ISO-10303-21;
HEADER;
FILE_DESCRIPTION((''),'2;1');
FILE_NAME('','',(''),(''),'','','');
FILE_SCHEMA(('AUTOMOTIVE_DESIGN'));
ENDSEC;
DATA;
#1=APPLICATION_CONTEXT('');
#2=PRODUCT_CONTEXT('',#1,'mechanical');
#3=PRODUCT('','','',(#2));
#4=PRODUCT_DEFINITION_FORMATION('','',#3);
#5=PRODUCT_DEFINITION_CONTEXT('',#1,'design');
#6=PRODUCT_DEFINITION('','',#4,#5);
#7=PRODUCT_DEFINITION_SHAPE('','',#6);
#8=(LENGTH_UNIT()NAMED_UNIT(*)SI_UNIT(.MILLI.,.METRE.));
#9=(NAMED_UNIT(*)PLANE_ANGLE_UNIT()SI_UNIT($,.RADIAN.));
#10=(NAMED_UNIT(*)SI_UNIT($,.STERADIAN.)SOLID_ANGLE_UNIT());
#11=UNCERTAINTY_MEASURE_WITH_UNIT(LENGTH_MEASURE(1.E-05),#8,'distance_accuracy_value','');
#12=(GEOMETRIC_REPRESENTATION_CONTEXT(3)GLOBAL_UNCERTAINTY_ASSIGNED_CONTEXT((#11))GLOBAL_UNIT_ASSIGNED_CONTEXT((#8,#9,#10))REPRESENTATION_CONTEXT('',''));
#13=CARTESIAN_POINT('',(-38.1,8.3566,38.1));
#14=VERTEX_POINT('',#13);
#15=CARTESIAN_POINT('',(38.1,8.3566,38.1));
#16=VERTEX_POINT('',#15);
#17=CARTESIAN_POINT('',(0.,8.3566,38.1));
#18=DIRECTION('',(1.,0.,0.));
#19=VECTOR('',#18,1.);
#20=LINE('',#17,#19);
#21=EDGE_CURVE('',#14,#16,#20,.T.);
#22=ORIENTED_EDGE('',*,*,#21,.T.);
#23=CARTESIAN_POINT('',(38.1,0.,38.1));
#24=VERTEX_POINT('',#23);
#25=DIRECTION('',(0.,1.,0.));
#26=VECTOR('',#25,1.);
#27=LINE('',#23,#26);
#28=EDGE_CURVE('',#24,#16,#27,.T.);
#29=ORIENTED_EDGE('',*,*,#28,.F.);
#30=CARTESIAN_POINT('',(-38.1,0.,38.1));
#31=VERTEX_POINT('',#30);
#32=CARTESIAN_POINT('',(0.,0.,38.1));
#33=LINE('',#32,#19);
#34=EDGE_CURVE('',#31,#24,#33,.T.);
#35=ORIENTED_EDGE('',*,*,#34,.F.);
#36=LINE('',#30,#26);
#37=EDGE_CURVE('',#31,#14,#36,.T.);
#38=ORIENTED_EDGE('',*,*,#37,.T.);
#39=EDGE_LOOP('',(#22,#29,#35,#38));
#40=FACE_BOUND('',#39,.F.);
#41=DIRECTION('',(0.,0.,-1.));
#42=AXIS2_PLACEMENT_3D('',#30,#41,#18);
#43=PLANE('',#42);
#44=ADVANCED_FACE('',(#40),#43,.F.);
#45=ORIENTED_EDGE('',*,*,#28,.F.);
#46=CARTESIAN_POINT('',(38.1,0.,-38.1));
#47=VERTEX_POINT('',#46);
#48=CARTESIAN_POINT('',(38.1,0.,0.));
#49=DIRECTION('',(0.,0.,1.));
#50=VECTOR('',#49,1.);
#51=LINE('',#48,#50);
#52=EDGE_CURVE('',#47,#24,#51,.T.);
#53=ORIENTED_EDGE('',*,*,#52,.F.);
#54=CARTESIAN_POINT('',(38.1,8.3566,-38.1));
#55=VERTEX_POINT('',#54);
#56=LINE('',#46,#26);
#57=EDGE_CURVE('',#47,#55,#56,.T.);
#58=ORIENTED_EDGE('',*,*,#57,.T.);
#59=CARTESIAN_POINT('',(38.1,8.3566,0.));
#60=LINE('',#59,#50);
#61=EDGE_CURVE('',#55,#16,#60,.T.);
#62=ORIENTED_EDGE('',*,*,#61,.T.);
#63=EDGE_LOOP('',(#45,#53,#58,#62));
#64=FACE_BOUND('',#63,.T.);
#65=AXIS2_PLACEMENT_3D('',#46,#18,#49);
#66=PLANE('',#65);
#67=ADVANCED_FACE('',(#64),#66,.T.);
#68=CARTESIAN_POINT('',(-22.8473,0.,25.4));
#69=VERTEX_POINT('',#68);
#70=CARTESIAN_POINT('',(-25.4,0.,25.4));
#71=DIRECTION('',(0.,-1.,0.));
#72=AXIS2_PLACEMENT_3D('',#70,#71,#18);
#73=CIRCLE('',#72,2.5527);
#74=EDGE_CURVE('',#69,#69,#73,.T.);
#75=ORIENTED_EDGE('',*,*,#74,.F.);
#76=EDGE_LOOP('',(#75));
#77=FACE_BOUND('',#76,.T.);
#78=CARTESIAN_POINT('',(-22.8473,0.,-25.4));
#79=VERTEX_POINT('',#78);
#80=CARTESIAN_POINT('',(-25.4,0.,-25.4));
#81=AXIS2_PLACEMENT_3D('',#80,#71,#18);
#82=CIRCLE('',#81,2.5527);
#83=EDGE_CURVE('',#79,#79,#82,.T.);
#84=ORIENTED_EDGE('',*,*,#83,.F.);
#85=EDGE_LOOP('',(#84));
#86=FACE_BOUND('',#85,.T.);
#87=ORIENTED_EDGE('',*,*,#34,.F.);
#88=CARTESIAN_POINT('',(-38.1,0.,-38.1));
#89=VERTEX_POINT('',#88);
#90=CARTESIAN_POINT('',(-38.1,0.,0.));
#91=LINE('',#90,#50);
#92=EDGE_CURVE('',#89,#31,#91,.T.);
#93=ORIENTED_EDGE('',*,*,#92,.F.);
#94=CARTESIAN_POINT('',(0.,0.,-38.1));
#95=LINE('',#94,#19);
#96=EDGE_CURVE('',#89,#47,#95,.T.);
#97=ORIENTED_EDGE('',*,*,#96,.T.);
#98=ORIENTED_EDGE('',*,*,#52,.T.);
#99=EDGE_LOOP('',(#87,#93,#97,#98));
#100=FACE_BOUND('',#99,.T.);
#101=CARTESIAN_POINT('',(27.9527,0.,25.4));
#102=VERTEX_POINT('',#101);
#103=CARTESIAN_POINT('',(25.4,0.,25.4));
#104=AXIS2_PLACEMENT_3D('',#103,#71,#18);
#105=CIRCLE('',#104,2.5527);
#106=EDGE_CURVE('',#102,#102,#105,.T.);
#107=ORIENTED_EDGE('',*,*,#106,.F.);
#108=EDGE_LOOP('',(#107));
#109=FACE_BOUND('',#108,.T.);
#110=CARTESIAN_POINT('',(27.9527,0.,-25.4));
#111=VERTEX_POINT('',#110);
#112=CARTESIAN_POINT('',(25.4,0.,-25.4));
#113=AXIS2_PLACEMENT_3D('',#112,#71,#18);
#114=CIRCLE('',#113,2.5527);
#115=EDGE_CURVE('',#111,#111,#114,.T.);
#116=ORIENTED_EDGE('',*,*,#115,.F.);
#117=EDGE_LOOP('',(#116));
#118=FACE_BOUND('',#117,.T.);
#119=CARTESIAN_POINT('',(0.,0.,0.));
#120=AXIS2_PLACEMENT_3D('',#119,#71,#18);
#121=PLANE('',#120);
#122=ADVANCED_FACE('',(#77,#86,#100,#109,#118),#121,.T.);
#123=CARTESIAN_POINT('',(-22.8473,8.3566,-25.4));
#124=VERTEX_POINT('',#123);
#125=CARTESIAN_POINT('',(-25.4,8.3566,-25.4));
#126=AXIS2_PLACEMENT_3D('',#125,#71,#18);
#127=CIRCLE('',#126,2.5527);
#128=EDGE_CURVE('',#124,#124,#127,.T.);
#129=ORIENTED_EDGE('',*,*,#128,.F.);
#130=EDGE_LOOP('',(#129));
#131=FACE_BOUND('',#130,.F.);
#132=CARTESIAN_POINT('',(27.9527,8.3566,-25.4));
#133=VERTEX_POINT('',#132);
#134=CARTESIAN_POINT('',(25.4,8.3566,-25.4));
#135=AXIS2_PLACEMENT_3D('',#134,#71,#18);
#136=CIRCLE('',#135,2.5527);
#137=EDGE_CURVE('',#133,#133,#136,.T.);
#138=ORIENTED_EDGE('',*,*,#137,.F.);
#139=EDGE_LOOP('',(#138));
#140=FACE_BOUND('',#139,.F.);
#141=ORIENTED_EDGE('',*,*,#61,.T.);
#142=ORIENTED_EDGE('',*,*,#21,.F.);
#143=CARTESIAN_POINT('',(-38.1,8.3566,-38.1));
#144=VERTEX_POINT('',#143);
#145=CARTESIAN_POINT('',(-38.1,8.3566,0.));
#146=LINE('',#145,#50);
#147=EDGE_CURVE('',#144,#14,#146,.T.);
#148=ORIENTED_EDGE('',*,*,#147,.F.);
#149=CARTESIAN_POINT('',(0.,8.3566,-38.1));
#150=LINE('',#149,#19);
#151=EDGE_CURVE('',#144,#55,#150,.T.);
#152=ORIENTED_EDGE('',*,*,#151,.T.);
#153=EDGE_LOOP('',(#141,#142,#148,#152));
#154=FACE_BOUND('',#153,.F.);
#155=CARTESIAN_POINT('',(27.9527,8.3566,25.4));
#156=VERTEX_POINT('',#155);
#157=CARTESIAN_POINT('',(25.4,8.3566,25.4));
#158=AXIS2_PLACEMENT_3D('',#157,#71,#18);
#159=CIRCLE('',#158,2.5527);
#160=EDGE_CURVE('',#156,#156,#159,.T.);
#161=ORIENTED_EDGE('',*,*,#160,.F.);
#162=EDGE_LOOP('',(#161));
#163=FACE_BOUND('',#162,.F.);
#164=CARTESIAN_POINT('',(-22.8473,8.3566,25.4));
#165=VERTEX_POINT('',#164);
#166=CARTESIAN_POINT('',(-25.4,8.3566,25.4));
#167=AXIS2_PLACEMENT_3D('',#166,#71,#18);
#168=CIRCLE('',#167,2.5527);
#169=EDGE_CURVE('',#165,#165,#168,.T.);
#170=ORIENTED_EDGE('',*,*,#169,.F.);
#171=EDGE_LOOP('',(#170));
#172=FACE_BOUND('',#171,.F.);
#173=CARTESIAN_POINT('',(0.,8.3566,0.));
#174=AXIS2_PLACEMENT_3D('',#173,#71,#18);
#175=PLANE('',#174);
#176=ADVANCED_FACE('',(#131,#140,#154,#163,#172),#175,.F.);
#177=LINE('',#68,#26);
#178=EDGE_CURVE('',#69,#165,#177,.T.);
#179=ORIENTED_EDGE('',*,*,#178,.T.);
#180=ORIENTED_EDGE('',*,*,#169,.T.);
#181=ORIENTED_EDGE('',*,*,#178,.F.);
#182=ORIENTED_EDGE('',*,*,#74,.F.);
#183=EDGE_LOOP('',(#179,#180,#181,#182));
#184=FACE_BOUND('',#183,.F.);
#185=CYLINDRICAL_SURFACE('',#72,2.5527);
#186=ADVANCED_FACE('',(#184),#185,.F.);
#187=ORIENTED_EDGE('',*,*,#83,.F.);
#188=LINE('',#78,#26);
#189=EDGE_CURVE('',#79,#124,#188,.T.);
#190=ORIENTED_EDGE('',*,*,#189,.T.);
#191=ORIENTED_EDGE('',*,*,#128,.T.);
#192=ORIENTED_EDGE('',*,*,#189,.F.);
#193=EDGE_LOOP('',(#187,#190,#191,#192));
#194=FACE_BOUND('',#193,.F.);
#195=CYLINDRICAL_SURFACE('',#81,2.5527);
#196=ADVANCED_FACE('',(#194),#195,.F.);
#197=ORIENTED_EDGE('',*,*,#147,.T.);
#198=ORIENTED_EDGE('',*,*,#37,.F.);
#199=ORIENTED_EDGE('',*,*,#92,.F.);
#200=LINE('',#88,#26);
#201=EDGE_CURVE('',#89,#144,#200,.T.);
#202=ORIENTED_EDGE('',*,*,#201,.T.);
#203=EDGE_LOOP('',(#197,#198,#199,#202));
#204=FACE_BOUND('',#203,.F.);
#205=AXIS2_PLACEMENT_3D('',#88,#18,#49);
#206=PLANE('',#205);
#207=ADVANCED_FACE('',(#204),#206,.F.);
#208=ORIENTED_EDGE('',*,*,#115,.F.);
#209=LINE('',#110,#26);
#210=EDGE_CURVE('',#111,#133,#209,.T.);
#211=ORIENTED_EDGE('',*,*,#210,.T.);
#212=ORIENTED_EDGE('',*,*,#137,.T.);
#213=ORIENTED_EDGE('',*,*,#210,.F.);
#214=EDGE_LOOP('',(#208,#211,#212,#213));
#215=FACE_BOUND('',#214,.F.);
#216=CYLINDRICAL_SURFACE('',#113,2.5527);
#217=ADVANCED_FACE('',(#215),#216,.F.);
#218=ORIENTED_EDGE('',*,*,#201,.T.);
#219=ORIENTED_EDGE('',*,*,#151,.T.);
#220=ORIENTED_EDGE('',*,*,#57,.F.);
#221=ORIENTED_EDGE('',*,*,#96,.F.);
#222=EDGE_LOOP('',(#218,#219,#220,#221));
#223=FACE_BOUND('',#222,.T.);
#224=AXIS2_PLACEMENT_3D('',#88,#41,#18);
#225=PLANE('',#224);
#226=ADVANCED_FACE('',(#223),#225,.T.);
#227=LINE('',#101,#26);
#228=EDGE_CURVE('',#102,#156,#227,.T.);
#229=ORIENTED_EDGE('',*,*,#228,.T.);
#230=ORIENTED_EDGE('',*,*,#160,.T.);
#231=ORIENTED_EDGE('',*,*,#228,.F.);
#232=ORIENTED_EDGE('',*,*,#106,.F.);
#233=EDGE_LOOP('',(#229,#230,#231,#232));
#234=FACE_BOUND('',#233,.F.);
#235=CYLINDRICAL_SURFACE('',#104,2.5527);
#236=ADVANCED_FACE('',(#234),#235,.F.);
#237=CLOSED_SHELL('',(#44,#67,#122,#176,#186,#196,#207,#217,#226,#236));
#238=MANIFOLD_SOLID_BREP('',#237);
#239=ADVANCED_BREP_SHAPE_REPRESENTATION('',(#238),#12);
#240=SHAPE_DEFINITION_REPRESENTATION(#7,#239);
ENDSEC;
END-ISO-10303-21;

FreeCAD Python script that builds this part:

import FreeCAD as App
import Part
import Sketcher
Q = App.Units.Quantity


def add_polygon(sketch, points):
    """Adds a closed chain of lines whose ends are joined by coincident constraints."""
    first, n = sketch.GeometryCount, len(points)
    for a, b in zip(points, points[1:] + points[:1]):
        sketch.addGeometry(Part.LineSegment(App.Vector(*a, 0), App.Vector(*b, 0)), False)
    for i in range(n):
        sketch.addConstraint(Sketcher.Constraint("Coincident", first + i, 2, first + (i + 1) % n, 1))

doc = App.newDocument("Part")
body = doc.addObject("PartDesign::Body", "Body")

# Sketch on XZ plane
sketch1 = body.newObject("Sketcher::SketchObject", "Sketch")
sketch1.AttachmentSupport = (doc.getObject("XZ_Plane"), [""])
sketch1.MapMode = "FlatFace"
add_polygon(sketch1, [(-38, 38), (-38, -38), (38, -38), (38, 38)])  # lines 0-3
sketch1.addConstraint(Sketcher.Constraint("Vertical", 0))
sketch1.addConstraint(Sketcher.Constraint("Horizontal", 1))
sketch1.addConstraint(Sketcher.Constraint("Vertical", 2))
sketch1.addConstraint(Sketcher.Constraint("Horizontal", 3))
sketch1.addConstraint(Sketcher.Constraint("Symmetric", 0, 2, 2, 2, -1, 1))
sketch1.addConstraint(Sketcher.Constraint("Equal", 3, 0))
sketch1.addConstraint(Sketcher.Constraint("DistanceX", 1, 1, 1, 2, Q("3 in")))
pad1 = body.newObject("PartDesign::Pad", "Pad")
pad1.Profile = sketch1
pad1.Length = Q("0.329 in")
pad1.Reversed = True

# Sketch on XZ plane
sketch2 = body.newObject("Sketcher::SketchObject", "Sketch001")
sketch2.AttachmentSupport = (doc.getObject("XZ_Plane"), [""])
sketch2.MapMode = "FlatFace"
sketch2.addGeometry(Part.Circle(App.Vector(-25.4, 25.4, 0), App.Vector(0, 0, 1), 2.6), False)
sketch2.addGeometry(Part.Circle(App.Vector(25.4, 25.4, 0), App.Vector(0, 0, 1), 2.6), False)
sketch2.addGeometry(Part.Circle(App.Vector(-25.4, -25.4, 0), App.Vector(0, 0, 1), 2.6), False)
sketch2.addGeometry(Part.Circle(App.Vector(25.4, -25.4, 0), App.Vector(0, 0, 1), 2.6), False)
sketch2.addConstraint(Sketcher.Constraint("Equal", 0, 1))
sketch2.addConstraint(Sketcher.Constraint("Equal", 1, 2))
sketch2.addConstraint(Sketcher.Constraint("Equal", 2, 3))
sketch2.addConstraint(Sketcher.Constraint("Symmetric", 1, 3, 2, 3, -1, 1))
sketch2.addConstraint(Sketcher.Constraint("Symmetric", 0, 3, 3, 3, -1, 1))
sketch2.addConstraint(Sketcher.Constraint("Symmetric", 0, 3, 1, 3, -2))
sketch2.addConstraint(Sketcher.Constraint("Diameter", 0, Q("0.201 in")))
sketch2.addConstraint(Sketcher.Constraint("DistanceX", 0, 3, -1, 1, Q("1 in")))
sketch2.addConstraint(Sketcher.Constraint("DistanceY", -1, 1, 0, 3, Q("1 in")))
pocket1 = body.newObject("PartDesign::Pocket", "Pocket")
pocket1.Profile = sketch2
pocket1.Type = "ThroughAll"

doc.recompute()
